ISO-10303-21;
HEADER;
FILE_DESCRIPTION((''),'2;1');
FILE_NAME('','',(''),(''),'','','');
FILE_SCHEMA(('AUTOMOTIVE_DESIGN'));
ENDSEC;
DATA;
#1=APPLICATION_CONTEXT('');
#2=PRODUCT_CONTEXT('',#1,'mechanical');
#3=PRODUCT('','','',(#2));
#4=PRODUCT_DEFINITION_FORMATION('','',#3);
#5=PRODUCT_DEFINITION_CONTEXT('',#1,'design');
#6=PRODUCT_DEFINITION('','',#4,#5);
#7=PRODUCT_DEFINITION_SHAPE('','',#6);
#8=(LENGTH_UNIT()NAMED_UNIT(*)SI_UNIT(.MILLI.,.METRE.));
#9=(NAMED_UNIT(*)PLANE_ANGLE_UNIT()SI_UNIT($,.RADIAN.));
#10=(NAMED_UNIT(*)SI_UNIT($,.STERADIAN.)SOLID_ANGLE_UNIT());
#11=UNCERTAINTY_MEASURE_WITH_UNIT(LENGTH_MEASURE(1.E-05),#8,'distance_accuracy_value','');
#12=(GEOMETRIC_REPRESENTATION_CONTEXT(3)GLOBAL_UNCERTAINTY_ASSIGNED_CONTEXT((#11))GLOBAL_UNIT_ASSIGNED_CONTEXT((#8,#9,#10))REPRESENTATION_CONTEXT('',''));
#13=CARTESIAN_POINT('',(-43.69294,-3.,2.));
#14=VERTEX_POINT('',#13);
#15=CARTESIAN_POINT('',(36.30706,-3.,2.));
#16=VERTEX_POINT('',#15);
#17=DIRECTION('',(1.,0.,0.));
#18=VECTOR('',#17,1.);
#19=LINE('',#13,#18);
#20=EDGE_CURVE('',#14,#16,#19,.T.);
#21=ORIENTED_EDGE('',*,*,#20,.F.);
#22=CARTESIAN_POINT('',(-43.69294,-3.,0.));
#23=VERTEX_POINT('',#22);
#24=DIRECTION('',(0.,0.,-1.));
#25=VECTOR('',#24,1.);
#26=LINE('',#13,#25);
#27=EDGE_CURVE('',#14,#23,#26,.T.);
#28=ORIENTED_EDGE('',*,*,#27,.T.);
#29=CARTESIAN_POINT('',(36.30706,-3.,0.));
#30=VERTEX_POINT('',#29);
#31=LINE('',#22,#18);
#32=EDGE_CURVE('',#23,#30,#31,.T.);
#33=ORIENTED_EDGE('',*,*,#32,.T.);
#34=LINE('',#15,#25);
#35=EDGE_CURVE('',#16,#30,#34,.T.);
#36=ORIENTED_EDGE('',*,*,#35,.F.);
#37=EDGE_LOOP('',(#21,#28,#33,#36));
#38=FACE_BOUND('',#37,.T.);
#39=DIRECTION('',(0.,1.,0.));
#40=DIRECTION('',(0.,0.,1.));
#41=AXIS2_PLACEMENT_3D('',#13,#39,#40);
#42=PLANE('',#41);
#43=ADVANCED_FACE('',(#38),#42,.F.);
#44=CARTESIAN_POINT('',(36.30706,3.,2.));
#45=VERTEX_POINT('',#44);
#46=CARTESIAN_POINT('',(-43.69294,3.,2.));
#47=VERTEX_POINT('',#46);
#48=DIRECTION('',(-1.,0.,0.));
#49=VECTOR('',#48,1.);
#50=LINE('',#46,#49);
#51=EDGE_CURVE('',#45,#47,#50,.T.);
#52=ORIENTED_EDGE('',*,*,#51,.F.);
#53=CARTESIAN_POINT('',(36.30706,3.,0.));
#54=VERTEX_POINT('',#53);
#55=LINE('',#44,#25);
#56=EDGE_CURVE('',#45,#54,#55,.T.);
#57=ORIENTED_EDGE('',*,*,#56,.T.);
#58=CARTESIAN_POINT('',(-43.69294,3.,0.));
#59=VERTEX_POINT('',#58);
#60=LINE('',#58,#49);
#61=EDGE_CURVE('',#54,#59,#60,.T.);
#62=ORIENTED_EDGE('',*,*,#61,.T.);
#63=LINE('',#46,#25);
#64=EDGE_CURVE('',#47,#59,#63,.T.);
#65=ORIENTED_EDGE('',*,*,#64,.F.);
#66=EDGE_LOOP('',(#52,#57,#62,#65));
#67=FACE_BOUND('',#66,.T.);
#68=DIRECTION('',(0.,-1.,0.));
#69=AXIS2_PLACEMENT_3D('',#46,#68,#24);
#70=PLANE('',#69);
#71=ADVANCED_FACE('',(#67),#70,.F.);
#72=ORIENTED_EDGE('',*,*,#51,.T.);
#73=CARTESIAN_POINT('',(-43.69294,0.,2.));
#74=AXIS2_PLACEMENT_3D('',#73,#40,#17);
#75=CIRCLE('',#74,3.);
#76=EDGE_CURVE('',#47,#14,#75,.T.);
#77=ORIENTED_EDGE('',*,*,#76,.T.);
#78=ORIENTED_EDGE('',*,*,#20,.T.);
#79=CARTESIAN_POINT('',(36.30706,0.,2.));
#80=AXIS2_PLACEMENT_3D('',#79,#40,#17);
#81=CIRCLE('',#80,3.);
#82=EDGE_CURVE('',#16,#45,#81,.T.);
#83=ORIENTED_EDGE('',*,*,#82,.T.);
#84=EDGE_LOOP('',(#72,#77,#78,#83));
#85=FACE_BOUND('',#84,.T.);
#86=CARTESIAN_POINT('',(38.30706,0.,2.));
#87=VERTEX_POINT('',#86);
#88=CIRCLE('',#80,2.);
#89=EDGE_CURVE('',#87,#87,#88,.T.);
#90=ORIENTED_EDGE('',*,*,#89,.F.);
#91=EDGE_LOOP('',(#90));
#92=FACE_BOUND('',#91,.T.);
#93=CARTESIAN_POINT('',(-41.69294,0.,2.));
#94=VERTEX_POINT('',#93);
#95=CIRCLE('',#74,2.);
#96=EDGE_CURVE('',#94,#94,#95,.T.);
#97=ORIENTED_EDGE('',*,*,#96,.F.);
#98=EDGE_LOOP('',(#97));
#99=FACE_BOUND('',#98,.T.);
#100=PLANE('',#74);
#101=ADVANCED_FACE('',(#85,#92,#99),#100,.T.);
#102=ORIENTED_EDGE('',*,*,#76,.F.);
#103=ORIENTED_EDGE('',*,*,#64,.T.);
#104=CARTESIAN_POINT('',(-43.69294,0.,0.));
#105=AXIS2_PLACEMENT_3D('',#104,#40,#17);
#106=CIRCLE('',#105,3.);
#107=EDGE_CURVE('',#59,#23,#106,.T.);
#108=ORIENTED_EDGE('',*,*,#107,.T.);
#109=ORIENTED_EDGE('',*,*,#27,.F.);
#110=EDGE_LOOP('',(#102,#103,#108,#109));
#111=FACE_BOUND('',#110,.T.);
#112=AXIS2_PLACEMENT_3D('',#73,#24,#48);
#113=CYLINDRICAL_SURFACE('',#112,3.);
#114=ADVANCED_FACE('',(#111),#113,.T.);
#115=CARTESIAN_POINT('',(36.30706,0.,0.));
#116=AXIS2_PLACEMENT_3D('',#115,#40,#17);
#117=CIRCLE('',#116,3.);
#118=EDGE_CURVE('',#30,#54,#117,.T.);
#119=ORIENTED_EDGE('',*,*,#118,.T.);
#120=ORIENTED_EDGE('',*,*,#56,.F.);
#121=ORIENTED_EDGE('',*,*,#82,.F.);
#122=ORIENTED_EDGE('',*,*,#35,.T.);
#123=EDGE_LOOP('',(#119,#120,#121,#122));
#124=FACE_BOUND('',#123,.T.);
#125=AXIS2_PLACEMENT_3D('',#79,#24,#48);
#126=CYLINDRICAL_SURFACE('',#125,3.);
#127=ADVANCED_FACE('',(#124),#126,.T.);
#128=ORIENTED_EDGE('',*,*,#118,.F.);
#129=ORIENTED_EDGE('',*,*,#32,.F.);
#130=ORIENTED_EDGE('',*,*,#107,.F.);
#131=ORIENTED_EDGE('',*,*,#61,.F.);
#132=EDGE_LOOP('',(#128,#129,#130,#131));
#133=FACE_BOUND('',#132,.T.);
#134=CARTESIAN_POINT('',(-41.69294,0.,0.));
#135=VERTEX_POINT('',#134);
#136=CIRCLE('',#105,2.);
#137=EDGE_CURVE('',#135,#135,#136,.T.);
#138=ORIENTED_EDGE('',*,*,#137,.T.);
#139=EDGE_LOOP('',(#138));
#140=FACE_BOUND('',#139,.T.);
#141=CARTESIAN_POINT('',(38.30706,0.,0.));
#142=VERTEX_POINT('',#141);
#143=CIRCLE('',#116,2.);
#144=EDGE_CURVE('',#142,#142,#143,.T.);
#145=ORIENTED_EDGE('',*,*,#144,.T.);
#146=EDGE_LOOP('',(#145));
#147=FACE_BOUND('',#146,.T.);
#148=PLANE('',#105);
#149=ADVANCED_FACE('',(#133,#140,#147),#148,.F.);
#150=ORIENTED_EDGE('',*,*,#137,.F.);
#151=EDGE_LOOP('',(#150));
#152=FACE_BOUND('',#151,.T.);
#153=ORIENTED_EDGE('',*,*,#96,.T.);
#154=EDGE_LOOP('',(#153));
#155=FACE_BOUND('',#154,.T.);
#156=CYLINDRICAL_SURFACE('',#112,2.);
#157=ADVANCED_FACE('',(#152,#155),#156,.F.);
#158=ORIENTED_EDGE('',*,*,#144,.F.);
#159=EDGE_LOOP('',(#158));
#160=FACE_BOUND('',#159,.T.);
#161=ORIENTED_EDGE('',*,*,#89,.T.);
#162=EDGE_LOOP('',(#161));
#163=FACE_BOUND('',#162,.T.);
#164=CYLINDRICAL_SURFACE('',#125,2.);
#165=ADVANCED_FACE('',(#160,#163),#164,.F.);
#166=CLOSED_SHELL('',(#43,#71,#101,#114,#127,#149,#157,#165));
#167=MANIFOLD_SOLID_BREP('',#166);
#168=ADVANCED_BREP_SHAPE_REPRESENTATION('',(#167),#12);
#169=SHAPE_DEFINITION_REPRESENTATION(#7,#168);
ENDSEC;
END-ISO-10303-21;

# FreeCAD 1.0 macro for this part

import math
import FreeCAD as App
import Part
import Sketcher
from FreeCAD import Vector

doc = App.newDocument("Part")
body = doc.addObject("PartDesign::Body", "Body")

sketch1 = doc.addObject("Sketcher::SketchObject", "Sketch")
body.addObject(sketch1)
sketch1.AttachmentSupport = (doc.XY_Plane, [""])
sketch1.MapMode = "FlatFace"
sketch1.addGeometry(Part.LineSegment(Vector(-43.7, -3, 0), Vector(36.3, -3, 0)), False)
sketch1.addGeometry(Part.ArcOfCircle(Part.Circle(Vector(36.3, 0, 0), Vector(0, 0, 1), 3), math.radians(-90), math.radians(90)), False)
sketch1.addGeometry(Part.LineSegment(Vector(36.3, 3, 0), Vector(-43.7, 3, 0)), False)
sketch1.addGeometry(Part.ArcOfCircle(Part.Circle(Vector(-43.7, 0, 0), Vector(0, 0, 1), 3), math.radians(90), math.radians(270)), False)
sketch1.addGeometry(Part.Circle(Vector(-43.7, 0, 0), Vector(0, 0, 1), 2), False)
sketch1.addGeometry(Part.Circle(Vector(36.3, 0, 0), Vector(0, 0, 1), 2), False)
sketch1.addConstraint(Sketcher.Constraint("Tangent", 0, 2, 1, 1))
sketch1.addConstraint(Sketcher.Constraint("Tangent", 1, 2, 2, 1))
sketch1.addConstraint(Sketcher.Constraint("Tangent", 2, 2, 3, 1))
sketch1.addConstraint(Sketcher.Constraint("Tangent", 3, 2, 0, 1))
sketch1.addConstraint(Sketcher.Constraint("Horizontal", 0))
sketch1.addConstraint(Sketcher.Constraint("Horizontal", 2))
sketch1.addConstraint(Sketcher.Constraint("Coincident", 4, 3, 3, 3))
sketch1.addConstraint(Sketcher.Constraint("Coincident", 5, 3, 1, 3))
sketch1.addConstraint(Sketcher.Constraint("Equal", 4, 5))
sketch1.addConstraint(Sketcher.Constraint("PointOnObject", 1, 3, -1))
sketch1.addConstraint(Sketcher.Constraint("Diameter", 4, 4.0))
sketch1.addConstraint(Sketcher.Constraint("Radius", 1, 3.0))
sketch1.addConstraint(Sketcher.Constraint("DistanceX", 0, 1, 0, 2, 80.0))
sketch1.addConstraint(Sketcher.Constraint("DistanceX", -1, 1, 1, 3, 36.30706))
pad1 = doc.addObject("PartDesign::Pad", "Pad")
body.addObject(pad1)
pad1.Profile = sketch1
pad1.Length = 2

doc.recompute()
